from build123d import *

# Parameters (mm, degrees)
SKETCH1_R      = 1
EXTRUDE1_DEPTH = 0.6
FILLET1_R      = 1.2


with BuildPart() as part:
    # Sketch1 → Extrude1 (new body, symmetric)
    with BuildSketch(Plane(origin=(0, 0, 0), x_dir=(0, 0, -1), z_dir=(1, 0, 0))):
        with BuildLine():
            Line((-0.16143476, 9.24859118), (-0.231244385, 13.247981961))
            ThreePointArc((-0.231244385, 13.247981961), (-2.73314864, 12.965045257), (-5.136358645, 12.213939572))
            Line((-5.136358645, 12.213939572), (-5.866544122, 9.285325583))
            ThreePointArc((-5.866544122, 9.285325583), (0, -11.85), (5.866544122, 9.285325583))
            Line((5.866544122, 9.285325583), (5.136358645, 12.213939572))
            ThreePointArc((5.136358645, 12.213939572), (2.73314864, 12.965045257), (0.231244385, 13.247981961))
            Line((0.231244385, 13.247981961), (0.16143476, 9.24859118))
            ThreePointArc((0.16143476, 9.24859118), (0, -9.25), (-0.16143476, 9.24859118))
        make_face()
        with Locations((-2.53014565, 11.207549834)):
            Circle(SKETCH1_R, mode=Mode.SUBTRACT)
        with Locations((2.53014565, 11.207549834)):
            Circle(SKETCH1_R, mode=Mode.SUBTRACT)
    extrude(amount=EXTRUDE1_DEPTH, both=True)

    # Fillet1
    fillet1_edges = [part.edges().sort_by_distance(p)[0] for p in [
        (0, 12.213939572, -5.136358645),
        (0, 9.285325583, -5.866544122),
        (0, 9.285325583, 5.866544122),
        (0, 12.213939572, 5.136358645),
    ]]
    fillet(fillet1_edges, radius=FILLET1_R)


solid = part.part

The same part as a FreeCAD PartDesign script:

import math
import FreeCAD as App
import Part
import Sketcher

V = App.Vector
Q = App.Units.Quantity


def edges_at(feature, points):
    """Names of the edges that pass closest to the given points."""
    edges = feature.Shape.Edges
    near = lambda p: min(range(len(edges)), key=lambda i: edges[i].distToShape(Part.Vertex(*p))[0])
    return sorted({f"Edge{near(p) + 1}" for p in points})

doc = App.newDocument("Part")
body = doc.addObject("PartDesign::Body", "Body")

sketch1 = body.newObject("Sketcher::SketchObject", "Sketch")
sketch1.AttachmentSupport = (doc.getObject("YZ_Plane"), [""])
sketch1.MapMode = "FlatFace"
sketch1.addGeometry([
    Part.LineSegment(V(9.25, 0.16, 0), V(13.25, 0.23, 0)),
    Part.ArcOfCircle(Part.Circle(V(0, 0, 0), V(0, 0, 1), 13.25), math.radians(1), math.radians(23)),
    Part.LineSegment(V(12.21, 5.14, 0), V(9.29, 5.87, 0)),
    Part.ArcOfCircle(Part.Circle(V(-0.47, 0, 0), V(0, 0, 1), 11.38), math.radians(31), math.radians(329)),
    Part.LineSegment(V(9.29, -5.87, 0), V(12.21, -5.14, 0)),
    Part.ArcOfCircle(Part.Circle(V(0, 0, 0), V(0, 0, 1), 13.25), math.radians(-23), math.radians(-1)),
    Part.LineSegment(V(13.25, -0.23, 0), V(9.25, -0.16, 0)),
    Part.ArcOfCircle(Part.Circle(V(0, 0, 0), V(0, 0, 1), 9.25), math.radians(1), math.radians(359)),
    Part.Circle(V(11.21, 2.53, 0), V(0, 0, 1), 1),
    Part.Circle(V(11.21, -2.53, 0), V(0, 0, 1), 1),
], False)
sketch1.addConstraint([
    Sketcher.Constraint("Coincident", 0, 2, 1, 1),
    Sketcher.Constraint("Coincident", 1, 2, 2, 1),
    Sketcher.Constraint("Coincident", 2, 2, 3, 1),
    Sketcher.Constraint("Coincident", 3, 2, 4, 1),
    Sketcher.Constraint("Coincident", 4, 2, 5, 1),
    Sketcher.Constraint("Coincident", 5, 2, 6, 1),
    Sketcher.Constraint("Coincident", 6, 2, 7, 2),
    Sketcher.Constraint("Coincident", 7, 1, 0, 1),
    Sketcher.Constraint("Coincident", 1, 3, -1, 1),
    Sketcher.Constraint("Coincident", 5, 3, -1, 1),
    Sketcher.Constraint("Coincident", 7, 3, -1, 1),
    Sketcher.Constraint("Equal", 1, 5),
    Sketcher.Constraint("Equal", 8, 9),
    Sketcher.Constraint("Symmetric", 8, 3, 9, 3, -1),
    Sketcher.Constraint("Symmetric", 2, 2, 3, 2, -1),
    Sketcher.Constraint("Vertical", 1, 2, 4, 2),
    Sketcher.Constraint("Vertical", 0, 2, 5, 2),
    Sketcher.Constraint("Vertical", 6, 2, 7, 1),
    Sketcher.Constraint("Diameter", 8, 2.0),
    Sketcher.Constraint("Angle", 0, Q("1 deg")),
    Sketcher.Constraint("Angle", 2, Q("166 deg")),
    Sketcher.Constraint("Radius", 1, 13.25),
    Sketcher.Constraint("Radius", 7, 9.25),
    Sketcher.Constraint("Radius", 3, 11.381853),
    Sketcher.Constraint("DistanceY", 0, 2, 8, 3, 2.298901),
    Sketcher.Constraint("DistanceY", 8, 3, 2, 2, 3.336398),
    Sketcher.Constraint("Distance", 2, 3.018269),
    Sketcher.Constraint("DistanceX", -1, 1, 8, 3, 11.20755),
    Sketcher.Constraint("DistanceX", -1, 1, 0, 2, 13.247982),
])
pad1 = body.newObject("PartDesign::Pad", "Pad")
pad1.Profile = sketch1
pad1.Length = 1.2
pad1.Midplane = True
doc.recompute()

fillet = body.newObject("PartDesign::Fillet", "Fillet")
fillet.Base = (pad1, edges_at(pad1, [
    (0, 12.214, -5.136),
    (0, 9.285, -5.867),
    (0, 9.285, 5.867),
    (0, 12.214, 5.136),
]))
fillet.Radius = 1.2

doc.recompute()
